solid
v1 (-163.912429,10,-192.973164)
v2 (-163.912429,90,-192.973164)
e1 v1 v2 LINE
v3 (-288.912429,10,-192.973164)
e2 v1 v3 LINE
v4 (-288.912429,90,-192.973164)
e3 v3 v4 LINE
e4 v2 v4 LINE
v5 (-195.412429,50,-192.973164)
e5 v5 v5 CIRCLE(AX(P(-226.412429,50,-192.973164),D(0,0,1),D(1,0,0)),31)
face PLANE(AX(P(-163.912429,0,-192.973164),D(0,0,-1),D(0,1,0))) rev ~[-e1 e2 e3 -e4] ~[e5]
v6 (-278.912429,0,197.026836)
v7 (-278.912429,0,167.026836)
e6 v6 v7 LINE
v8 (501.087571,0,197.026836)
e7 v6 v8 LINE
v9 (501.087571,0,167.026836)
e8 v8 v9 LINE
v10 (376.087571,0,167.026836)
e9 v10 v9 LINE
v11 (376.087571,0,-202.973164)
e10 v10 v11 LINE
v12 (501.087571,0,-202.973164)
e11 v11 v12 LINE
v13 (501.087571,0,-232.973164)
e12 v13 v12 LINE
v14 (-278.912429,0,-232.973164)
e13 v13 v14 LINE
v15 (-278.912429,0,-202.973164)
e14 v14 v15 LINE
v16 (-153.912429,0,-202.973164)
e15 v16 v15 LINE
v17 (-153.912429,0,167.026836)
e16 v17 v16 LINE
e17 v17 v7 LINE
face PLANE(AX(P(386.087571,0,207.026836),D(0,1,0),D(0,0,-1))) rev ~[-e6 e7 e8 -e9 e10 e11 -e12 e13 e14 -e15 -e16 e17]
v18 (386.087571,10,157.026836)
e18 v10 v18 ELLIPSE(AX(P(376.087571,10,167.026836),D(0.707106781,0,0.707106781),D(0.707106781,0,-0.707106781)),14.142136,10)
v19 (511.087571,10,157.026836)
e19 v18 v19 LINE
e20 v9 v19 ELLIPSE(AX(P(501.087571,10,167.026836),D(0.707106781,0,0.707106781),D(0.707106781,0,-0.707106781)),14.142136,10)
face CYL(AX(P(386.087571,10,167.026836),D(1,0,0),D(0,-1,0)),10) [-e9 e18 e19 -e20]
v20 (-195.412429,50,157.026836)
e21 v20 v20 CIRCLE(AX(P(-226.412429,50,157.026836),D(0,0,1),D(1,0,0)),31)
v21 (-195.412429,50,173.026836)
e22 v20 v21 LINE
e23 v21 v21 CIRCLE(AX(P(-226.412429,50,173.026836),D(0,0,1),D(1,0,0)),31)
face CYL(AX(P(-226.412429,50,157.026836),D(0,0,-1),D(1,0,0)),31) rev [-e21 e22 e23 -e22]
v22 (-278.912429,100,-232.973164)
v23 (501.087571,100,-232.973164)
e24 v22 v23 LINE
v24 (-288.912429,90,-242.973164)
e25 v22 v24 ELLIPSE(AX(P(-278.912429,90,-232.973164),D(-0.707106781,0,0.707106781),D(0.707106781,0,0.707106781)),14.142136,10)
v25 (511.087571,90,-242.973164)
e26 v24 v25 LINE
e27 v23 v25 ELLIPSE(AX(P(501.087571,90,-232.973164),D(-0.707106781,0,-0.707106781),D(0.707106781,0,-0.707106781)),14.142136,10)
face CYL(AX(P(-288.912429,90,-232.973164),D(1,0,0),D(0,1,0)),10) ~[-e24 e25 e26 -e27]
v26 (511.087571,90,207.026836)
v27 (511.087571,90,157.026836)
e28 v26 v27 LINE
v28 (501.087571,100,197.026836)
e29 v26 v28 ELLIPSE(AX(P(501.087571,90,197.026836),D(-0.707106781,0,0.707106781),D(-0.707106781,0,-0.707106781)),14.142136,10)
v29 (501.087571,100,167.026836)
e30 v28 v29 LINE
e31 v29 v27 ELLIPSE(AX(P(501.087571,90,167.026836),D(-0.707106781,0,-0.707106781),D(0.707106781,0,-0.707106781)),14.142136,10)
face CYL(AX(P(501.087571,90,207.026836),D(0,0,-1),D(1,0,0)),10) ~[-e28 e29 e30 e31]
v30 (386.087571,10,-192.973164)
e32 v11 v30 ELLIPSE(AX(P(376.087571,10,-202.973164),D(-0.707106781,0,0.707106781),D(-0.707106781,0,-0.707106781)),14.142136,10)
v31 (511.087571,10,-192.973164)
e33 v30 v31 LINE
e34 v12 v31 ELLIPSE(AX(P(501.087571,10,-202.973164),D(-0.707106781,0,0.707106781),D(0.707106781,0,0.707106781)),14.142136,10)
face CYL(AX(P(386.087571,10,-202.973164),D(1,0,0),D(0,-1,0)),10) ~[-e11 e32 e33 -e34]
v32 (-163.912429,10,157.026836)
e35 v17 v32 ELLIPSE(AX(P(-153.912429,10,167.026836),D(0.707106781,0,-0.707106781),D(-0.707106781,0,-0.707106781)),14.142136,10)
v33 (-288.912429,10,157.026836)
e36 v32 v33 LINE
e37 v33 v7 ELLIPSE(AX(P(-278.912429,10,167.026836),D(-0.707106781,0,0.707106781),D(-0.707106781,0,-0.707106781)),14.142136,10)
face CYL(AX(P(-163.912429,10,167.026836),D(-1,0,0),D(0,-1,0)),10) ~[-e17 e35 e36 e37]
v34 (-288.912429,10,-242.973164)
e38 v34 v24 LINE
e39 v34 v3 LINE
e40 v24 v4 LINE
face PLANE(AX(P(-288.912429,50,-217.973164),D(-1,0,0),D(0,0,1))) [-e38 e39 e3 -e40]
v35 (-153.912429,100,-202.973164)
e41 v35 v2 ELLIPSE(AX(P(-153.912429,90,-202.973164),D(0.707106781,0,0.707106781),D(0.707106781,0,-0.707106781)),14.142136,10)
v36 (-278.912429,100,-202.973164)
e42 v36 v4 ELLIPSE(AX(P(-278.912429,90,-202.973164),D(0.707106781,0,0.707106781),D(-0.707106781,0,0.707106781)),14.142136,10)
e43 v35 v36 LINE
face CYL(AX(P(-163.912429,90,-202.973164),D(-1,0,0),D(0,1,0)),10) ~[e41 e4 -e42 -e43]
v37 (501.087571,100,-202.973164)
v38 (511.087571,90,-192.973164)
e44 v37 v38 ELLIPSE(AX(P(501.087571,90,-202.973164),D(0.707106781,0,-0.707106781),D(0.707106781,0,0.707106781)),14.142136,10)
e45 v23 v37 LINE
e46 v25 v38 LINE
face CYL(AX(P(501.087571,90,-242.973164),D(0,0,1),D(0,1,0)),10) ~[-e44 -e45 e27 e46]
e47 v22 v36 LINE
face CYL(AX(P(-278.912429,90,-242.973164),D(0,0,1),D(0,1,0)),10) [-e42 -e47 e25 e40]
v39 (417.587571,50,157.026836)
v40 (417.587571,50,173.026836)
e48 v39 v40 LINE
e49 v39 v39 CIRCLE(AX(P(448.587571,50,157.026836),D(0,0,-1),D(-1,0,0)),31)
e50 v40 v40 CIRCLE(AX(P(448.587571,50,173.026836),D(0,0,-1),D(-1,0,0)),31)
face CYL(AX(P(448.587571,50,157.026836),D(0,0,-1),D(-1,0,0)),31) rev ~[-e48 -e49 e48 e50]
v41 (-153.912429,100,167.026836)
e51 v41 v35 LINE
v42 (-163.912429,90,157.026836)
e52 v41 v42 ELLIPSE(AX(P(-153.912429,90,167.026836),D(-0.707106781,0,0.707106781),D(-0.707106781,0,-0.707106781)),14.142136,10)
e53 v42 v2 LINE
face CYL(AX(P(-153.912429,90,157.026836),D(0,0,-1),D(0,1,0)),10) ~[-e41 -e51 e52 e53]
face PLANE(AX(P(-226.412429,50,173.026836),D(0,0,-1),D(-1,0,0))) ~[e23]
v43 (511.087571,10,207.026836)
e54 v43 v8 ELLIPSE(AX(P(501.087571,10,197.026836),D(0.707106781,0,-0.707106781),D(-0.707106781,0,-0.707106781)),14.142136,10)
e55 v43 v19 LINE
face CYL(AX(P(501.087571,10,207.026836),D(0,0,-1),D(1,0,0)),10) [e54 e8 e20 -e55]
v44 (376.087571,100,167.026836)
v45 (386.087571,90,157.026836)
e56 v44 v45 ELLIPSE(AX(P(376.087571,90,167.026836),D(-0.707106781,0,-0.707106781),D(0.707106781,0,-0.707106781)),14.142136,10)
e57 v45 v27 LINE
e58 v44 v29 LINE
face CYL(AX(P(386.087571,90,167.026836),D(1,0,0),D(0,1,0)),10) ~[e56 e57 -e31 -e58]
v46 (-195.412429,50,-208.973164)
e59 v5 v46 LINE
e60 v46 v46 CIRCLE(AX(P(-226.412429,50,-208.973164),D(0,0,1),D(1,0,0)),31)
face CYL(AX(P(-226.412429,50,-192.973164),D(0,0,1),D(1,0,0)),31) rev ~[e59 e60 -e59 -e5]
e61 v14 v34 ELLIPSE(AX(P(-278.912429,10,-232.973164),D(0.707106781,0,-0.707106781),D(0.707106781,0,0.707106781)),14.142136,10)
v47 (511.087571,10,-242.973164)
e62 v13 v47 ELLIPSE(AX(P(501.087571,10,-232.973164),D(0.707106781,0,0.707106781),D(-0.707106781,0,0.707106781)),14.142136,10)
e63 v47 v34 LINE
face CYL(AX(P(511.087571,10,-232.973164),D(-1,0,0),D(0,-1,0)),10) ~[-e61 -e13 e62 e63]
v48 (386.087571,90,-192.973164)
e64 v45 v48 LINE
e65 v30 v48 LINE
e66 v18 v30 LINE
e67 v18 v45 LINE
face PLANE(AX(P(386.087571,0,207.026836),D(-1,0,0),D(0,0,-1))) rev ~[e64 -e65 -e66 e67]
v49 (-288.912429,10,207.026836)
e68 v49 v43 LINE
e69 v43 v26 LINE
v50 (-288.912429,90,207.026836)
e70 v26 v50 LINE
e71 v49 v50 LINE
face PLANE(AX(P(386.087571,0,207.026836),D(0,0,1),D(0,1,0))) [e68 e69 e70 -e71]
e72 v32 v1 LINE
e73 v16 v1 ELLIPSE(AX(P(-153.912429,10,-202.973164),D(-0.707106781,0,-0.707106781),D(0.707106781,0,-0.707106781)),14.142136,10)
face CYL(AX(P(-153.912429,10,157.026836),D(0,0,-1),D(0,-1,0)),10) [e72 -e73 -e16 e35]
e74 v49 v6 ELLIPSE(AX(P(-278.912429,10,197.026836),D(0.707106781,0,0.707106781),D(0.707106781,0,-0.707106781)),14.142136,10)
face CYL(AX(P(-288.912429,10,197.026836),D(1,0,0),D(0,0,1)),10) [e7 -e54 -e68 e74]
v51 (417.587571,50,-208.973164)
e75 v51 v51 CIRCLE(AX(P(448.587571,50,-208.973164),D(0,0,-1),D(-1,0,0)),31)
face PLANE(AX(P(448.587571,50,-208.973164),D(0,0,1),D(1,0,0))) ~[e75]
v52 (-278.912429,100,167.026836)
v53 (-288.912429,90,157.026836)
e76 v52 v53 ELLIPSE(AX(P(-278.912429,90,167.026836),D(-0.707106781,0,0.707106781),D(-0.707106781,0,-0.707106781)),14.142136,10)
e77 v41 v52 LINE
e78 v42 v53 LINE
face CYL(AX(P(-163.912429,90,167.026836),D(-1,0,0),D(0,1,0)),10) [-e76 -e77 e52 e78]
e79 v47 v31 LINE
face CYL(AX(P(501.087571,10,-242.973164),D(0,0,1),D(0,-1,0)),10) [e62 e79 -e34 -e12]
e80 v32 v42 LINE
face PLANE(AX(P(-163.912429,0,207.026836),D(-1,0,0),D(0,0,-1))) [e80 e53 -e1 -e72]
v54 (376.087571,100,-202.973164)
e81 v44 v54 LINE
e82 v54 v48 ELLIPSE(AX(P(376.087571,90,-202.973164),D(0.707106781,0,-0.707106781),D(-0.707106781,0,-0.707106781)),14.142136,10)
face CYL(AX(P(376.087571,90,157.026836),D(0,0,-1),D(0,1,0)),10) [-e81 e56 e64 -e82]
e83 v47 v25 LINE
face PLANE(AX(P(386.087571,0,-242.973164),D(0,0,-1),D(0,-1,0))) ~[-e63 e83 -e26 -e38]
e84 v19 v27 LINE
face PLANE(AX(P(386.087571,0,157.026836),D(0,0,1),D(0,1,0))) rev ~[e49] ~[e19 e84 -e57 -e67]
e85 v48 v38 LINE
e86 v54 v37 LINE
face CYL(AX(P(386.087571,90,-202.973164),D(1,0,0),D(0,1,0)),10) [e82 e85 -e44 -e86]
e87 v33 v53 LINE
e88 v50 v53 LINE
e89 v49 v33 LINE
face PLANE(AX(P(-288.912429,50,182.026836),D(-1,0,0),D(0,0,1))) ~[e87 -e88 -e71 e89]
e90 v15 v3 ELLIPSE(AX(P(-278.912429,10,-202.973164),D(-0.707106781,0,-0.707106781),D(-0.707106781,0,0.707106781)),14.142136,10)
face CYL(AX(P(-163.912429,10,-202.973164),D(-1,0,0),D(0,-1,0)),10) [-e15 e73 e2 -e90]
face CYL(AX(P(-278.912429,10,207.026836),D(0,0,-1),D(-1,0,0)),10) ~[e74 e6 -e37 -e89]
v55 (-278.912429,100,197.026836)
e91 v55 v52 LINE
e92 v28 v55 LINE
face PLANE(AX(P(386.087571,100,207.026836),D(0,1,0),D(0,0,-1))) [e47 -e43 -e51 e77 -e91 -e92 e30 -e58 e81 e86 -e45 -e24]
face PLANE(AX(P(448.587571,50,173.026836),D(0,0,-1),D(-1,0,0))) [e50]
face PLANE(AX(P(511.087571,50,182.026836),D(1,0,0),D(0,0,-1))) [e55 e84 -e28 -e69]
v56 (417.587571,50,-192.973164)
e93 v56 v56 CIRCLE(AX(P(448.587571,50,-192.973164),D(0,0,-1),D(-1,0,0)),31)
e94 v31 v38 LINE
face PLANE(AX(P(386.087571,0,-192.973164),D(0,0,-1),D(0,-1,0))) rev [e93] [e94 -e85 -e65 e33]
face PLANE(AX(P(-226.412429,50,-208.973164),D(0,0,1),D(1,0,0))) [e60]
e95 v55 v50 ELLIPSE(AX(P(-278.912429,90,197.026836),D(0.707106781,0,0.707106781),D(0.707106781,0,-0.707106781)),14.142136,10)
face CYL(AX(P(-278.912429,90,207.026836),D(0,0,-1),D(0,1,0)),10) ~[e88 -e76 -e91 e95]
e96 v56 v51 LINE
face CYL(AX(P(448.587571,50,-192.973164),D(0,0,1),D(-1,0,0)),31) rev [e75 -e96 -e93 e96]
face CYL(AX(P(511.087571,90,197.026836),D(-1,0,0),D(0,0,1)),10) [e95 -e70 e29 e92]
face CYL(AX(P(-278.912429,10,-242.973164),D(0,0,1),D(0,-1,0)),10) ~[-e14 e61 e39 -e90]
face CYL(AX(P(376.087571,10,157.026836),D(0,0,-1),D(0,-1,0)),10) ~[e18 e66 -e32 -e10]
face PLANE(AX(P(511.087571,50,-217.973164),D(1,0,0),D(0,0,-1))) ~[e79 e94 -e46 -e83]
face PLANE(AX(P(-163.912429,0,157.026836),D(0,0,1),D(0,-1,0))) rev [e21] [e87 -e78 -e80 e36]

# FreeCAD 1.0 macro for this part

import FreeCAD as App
import Part
import Sketcher
Q = App.Units.Quantity


def edges_at(feature, points):
    """Names of the edges that pass closest to the given points."""
    edges = feature.Shape.Edges
    near = lambda p: min(range(len(edges)), key=lambda i: edges[i].distToShape(Part.Vertex(*p))[0])
    return sorted({f"Edge{near(p) + 1}" for p in points})

doc = App.newDocument("Part")
params = doc.addObject("Spreadsheet::Sheet", "Params")
for row, (alias, value) in enumerate([
    ("sketch1_width", "550 mm"),
    ("sketch1_height", "450 mm"),
    ("pad1_length", "100 mm"),
    ("sketch2_width", "100 mm"),
    ("sketch2_height", "50 mm"),
    ("pad2_length", "125 mm"),
    ("sketch3_width", "100 mm"),
    ("sketch3_height", "50 mm"),
    ("pad3_length", "125 mm"),
    ("sketch4_diameter", "62 mm"),
    ("pocket1_length", "16 mm"),
    ("sketch5_diameter", "62 mm"),
    ("pocket2_length", "16 mm"),
    ("fillet_radius", "10 mm"),
], start=1):
    params.set(f"A{row}", alias)
    params.set(f"B{row}", "=" + value)
    params.setAlias(f"B{row}", alias)

body = doc.addObject("PartDesign::Body", "Body")

# Sketch on XZ plane
sketch1 = body.newObject("Sketcher::SketchObject", "Sketch")
sketch1.AttachmentSupport = (doc.getObject("XZ_Plane"), [""])
sketch1.MapMode = "FlatFace"
sketch1.addGeometry([
    Part.LineSegment(App.Vector(-164, -243, 0), App.Vector(-164, 207, 0)),
    Part.LineSegment(App.Vector(-164, 207, 0), App.Vector(386, 207, 0)),
    Part.LineSegment(App.Vector(386, 207, 0), App.Vector(386, -243, 0)),
    Part.LineSegment(App.Vector(386, -243, 0), App.Vector(-164, -243, 0)),
], False)
sketch1.addConstraint([
    Sketcher.Constraint("Coincident", 0, 2, 1, 1),
    Sketcher.Constraint("Coincident", 1, 2, 2, 1),
    Sketcher.Constraint("Coincident", 2, 2, 3, 1),
    Sketcher.Constraint("Coincident", 3, 2, 0, 1),
    Sketcher.Constraint("Vertical", 0),
    Sketcher.Constraint("Horizontal", 1),
    Sketcher.Constraint("Vertical", 2),
    Sketcher.Constraint("Horizontal", 3),
    Sketcher.Constraint("DistanceX", 1, 1, 1, 2, Q("550 mm")),
    Sketcher.Constraint("DistanceY", 0, 1, 0, 2, Q("450 mm")),
    Sketcher.Constraint("DistanceX", 0, 2, -1, 1, Q("163.912429 mm")),
    Sketcher.Constraint("DistanceY", -1, 1, 0, 2, Q("207.026836 mm")),
])
sketch1.setExpression("Constraints[8]", "Params.sketch1_width")
sketch1.setExpression("Constraints[9]", "Params.sketch1_height")
pad1 = body.newObject("PartDesign::Pad", "Pad")
pad1.Profile = sketch1
pad1.setExpression("Length", "Params.pad1_length")
pad1.Reversed = True

# Sketch on YZ plane
sketch2 = body.newObject("Sketcher::SketchObject", "Sketch001")
sketch2.AttachmentSupport = (doc.getObject("YZ_Plane"), [""])
sketch2.MapMode = "FlatFace"
sketch2.AttachmentOffset = App.Placement(App.Vector(0, 0, -163.912429), App.Rotation())
sketch2.addGeometry([
    Part.LineSegment(App.Vector(100, -243, 0), App.Vector(0, -243, 0)),
    Part.LineSegment(App.Vector(0, -243, 0), App.Vector(0, -193, 0)),
    Part.LineSegment(App.Vector(0, -193, 0), App.Vector(100, -193, 0)),
    Part.LineSegment(App.Vector(100, -193, 0), App.Vector(100, -243, 0)),
], False)
sketch2.addConstraint([
    Sketcher.Constraint("Coincident", 0, 2, 1, 1),
    Sketcher.Constraint("Coincident", 1, 2, 2, 1),
    Sketcher.Constraint("Coincident", 2, 2, 3, 1),
    Sketcher.Constraint("Coincident", 3, 2, 0, 1),
    Sketcher.Constraint("Horizontal", 0),
    Sketcher.Constraint("Vertical", 1),
    Sketcher.Constraint("Horizontal", 2),
    Sketcher.Constraint("Vertical", 3),
    Sketcher.Constraint("PointOnObject", 0, 2, -2),
    Sketcher.Constraint("DistanceX", 0, 2, 0, 1, Q("100 mm")),
    Sketcher.Constraint("DistanceY", 1, 1, 1, 2, Q("50 mm")),
    Sketcher.Constraint("DistanceY", 0, 2, -1, 1, Q("242.973164 mm")),
])
sketch2.setExpression("Constraints[9]", "Params.sketch2_width")
sketch2.setExpression("Constraints[10]", "Params.sketch2_height")
pad2 = body.newObject("PartDesign::Pad", "Pad001")
pad2.Profile = sketch2
pad2.setExpression("Length", "Params.pad2_length")
pad2.Reversed = True
doc.recompute()

datumplane = body.newObject("PartDesign::Plane", "DatumPlane")
datumplane.AttachmentSupport = (doc.getObject("XY_Plane"), [""])
datumplane.MapMode = "FlatFace"
datumplane.AttachmentOffset = App.Placement(App.Vector(0, 0, -17.973164), App.Rotation())
mirrored = body.newObject("PartDesign::Mirrored", "Mirrored")
mirrored.Originals = [pad2]
mirrored.MirrorPlane = (datumplane, [""])
body.Tip = mirrored
doc.recompute()

datumplane2 = body.newObject("PartDesign::Plane", "DatumPlane001")
datumplane2.AttachmentSupport = (doc.getObject("YZ_Plane"), [""])
datumplane2.MapMode = "FlatFace"
datumplane2.AttachmentOffset = App.Placement(App.Vector(0, 0, 111.087571), App.Rotation())
mirrored2 = body.newObject("PartDesign::Mirrored", "Mirrored001")
mirrored2.Originals = [pad1, pad2]
mirrored2.MirrorPlane = (datumplane2, [""])
body.Tip = mirrored2

# Sketch on YZ plane
sketch3 = body.newObject("Sketcher::SketchObject", "Sketch002")
sketch3.AttachmentSupport = (doc.getObject("YZ_Plane"), [""])
sketch3.MapMode = "FlatFace"
sketch3.AttachmentOffset = App.Placement(App.Vector(0, 0, 386.087571), App.Rotation())
sketch3.addGeometry([
    Part.LineSegment(App.Vector(100, 207, 0), App.Vector(0, 207, 0)),
    Part.LineSegment(App.Vector(0, 207, 0), App.Vector(0, 157, 0)),
    Part.LineSegment(App.Vector(0, 157, 0), App.Vector(100, 157, 0)),
    Part.LineSegment(App.Vector(100, 157, 0), App.Vector(100, 207, 0)),
], False)
sketch3.addConstraint([
    Sketcher.Constraint("Coincident", 0, 2, 1, 1),
    Sketcher.Constraint("Coincident", 1, 2, 2, 1),
    Sketcher.Constraint("Coincident", 2, 2, 3, 1),
    Sketcher.Constraint("Coincident", 3, 2, 0, 1),
    Sketcher.Constraint("Horizontal", 0),
    Sketcher.Constraint("Vertical", 1),
    Sketcher.Constraint("Horizontal", 2),
    Sketcher.Constraint("Vertical", 3),
    Sketcher.Constraint("PointOnObject", 0, 2, -2),
    Sketcher.Constraint("DistanceX", 0, 2, 0, 1, Q("100 mm")),
    Sketcher.Constraint("DistanceY", 1, 2, 1, 1, Q("50 mm")),
    Sketcher.Constraint("DistanceY", -1, 1, 0, 2, Q("207.026836 mm")),
])
sketch3.setExpression("Constraints[9]", "Params.sketch3_width")
sketch3.setExpression("Constraints[10]", "Params.sketch3_height")
pad3 = body.newObject("PartDesign::Pad", "Pad002")
pad3.Profile = sketch3
pad3.setExpression("Length", "Params.pad3_length")

# Sketch on XY plane
sketch4 = body.newObject("Sketcher::SketchObject", "Sketch003")
sketch4.AttachmentSupport = (doc.getObject("XY_Plane"), [""])
sketch4.MapMode = "FlatFace"
sketch4.AttachmentOffset = App.Placement(App.Vector(0, 0, 157.026836), App.Rotation())
sketch4.addGeometry(Part.Circle(App.Vector(449, 50, 0), App.Vector(0, 0, 1), 31), False)
sketch4.addConstraint([
    Sketcher.Constraint("Diameter", 0, Q("62 mm")),
    Sketcher.Constraint("DistanceY", -1, 1, 0, 3, Q("50 mm")),
    Sketcher.Constraint("DistanceX", -1, 1, 0, 3, Q("448.587571 mm")),
])
sketch4.setExpression("Constraints[0]", "Params.sketch4_diameter")
pocket1 = body.newObject("PartDesign::Pocket", "Pocket")
pocket1.Profile = sketch4
pocket1.setExpression("Length", "Params.pocket1_length")
pocket1.Reversed = True
doc.recompute()

datumplane3 = body.newObject("PartDesign::Plane", "DatumPlane002")
datumplane3.AttachmentSupport = (doc.getObject("XY_Plane"), [""])
datumplane3.MapMode = "FlatFace"
datumplane3.AttachmentOffset = App.Placement(App.Vector(0, 0, -17.973164), App.Rotation())
mirrored3 = body.newObject("PartDesign::Mirrored", "Mirrored002")
mirrored3.Originals = [pocket1]
mirrored3.MirrorPlane = (datumplane3, [""])
body.Tip = mirrored3
doc.recompute()

datumplane4 = body.newObject("PartDesign::Plane", "DatumPlane003")
datumplane4.AttachmentSupport = (doc.getObject("YZ_Plane"), [""])
datumplane4.MapMode = "FlatFace"
datumplane4.AttachmentOffset = App.Placement(App.Vector(0, 0, 111.087571), App.Rotation())
mirrored4 = body.newObject("PartDesign::Mirrored", "Mirrored003")
mirrored4.Originals = [pocket1]
mirrored4.MirrorPlane = (datumplane4, [""])
body.Tip = mirrored4

# Sketch on XY plane
sketch5 = body.newObject("Sketcher::SketchObject", "Sketch004")
sketch5.AttachmentSupport = (doc.getObject("XY_Plane"), [""])
sketch5.MapMode = "FlatFace"
sketch5.AttachmentOffset = App.Placement(App.Vector(0, 0, -192.973164), App.Rotation())
sketch5.addGeometry(Part.Circle(App.Vector(-226, 50, 0), App.Vector(0, 0, 1), 31), False)
sketch5.addConstraint([
    Sketcher.Constraint("Diameter", 0, Q("62 mm")),
    Sketcher.Constraint("DistanceY", -1, 1, 0, 3, Q("50 mm")),
    Sketcher.Constraint("DistanceX", 0, 3, -1, 1, Q("226.412429 mm")),
])
sketch5.setExpression("Constraints[0]", "Params.sketch5_diameter")
pocket2 = body.newObject("PartDesign::Pocket", "Pocket001")
pocket2.Profile = sketch5
pocket2.setExpression("Length", "Params.pocket2_length")
doc.recompute()

fillet = body.newObject("PartDesign::Fillet", "Fillet")
fillet.Base = (pocket2, edges_at(pocket2, [
    (386.088, 0, -17.973),
    (386.088, 100, -17.973),
    (448.588, 0, 157.027),
    (448.588, 100, 157.027),
    (511.088, 0, 182.027),
    (511.088, 100, 182.027),
    (111.088, 100, -242.973),
    (-163.912, 0, -17.973),
    (-163.912, 100, -17.973),
    (-226.412, 0, -192.973),
    (-226.412, 100, -192.973),
    (-288.912, 0, -217.973),
    (-288.912, 100, -217.973),
    (-288.912, 100, 182.027),
    (-226.412, 100, 157.027),
    (-288.912, 0, 182.027),
    (-226.412, 0, 157.027),
    (111.088, 0, -242.973),
    (111.088, 0, 207.027),
    (511.088, 100, -217.973),
    (111.088, 100, 207.027),
    (448.588, 100, -192.973),
    (511.088, 0, -217.973),
    (448.588, 0, -192.973),
]))
fillet.setExpression("Radius", "Params.fillet_radius")

doc.recompute()
